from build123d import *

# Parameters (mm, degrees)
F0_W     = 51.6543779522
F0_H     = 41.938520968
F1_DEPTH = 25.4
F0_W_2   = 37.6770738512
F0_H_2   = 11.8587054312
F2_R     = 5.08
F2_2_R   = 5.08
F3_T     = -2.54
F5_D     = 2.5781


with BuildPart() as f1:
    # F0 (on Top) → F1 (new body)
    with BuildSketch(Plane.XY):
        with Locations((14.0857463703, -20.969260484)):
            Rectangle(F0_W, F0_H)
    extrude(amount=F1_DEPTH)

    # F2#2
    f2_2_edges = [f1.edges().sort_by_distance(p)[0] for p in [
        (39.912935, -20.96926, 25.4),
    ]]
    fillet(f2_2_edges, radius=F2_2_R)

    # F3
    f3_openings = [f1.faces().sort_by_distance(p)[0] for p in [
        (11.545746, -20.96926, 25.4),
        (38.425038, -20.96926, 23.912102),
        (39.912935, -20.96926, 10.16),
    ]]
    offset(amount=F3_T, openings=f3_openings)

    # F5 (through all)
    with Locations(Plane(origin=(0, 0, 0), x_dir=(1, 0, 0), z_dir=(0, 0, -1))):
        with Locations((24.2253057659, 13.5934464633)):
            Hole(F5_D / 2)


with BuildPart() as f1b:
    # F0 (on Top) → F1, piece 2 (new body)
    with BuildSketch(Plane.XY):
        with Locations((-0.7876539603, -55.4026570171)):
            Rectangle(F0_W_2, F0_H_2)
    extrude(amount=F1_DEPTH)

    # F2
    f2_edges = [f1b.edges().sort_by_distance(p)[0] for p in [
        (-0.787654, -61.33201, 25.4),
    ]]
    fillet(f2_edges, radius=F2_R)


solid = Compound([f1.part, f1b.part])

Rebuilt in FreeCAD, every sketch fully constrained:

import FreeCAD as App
import Part
import Sketcher
Q = App.Units.Quantity


def edges_at(feature, points):
    """Names of the edges that pass closest to the given points."""
    edges = feature.Shape.Edges
    near = lambda p: min(range(len(edges)), key=lambda i: edges[i].distToShape(Part.Vertex(*p))[0])
    return sorted({f"Edge{near(p) + 1}" for p in points})


def faces_at(feature, points):
    """Names of the faces that lie closest to the given points."""
    faces = feature.Shape.Faces
    near = lambda p: min(range(len(faces)), key=lambda i: faces[i].distToShape(Part.Vertex(*p))[0])
    return sorted({f"Face{near(p) + 1}" for p in points})


def add_polygon(sketch, points):
    """Adds a closed chain of lines whose ends are joined by coincident constraints."""
    first, n = sketch.GeometryCount, len(points)
    for a, b in zip(points, points[1:] + points[:1]):
        sketch.addGeometry(Part.LineSegment(App.Vector(*a, 0), App.Vector(*b, 0)), False)
    for i in range(n):
        sketch.addConstraint(Sketcher.Constraint("Coincident", first + i, 2, first + (i + 1) % n, 1))

doc = App.newDocument("Part")
body = doc.addObject("PartDesign::Body", "Body")

# Sketch on XY plane
sketch1 = doc.addObject("Sketcher::SketchObject", "Sketch")
body.addObject(sketch1)
sketch1.AttachmentSupport = (doc.XY_Plane, [""])
sketch1.MapMode = "FlatFace"
add_polygon(sketch1, [(-11.741443, 0), (-11.741443, -41.938521), (39.912935, -41.938521), (39.912935, 0)])  # lines 0-3
sketch1.addConstraint([
    Sketcher.Constraint("Vertical", 0),
    Sketcher.Constraint("Horizontal", 1),
    Sketcher.Constraint("Vertical", 2),
    Sketcher.Constraint("Horizontal", 3),
    Sketcher.Constraint("PointOnObject", 2, 2, -1),
    Sketcher.Constraint("DistanceY", 0, 2, 0, 1, Q("41.938521 mm")),
    Sketcher.Constraint("DistanceX", 1, 1, 1, 2, Q("51.654378 mm")),
    Sketcher.Constraint("DistanceX", 0, 2, -1, 1, Q("11.741443 mm")),
])
pad1 = doc.addObject("PartDesign::Pad", "Pad")
body.addObject(pad1)
pad1.Profile = sketch1
pad1.Length = Q("1 in")
doc.recompute()

fillet = doc.addObject("PartDesign::Fillet", "Fillet")
body.addObject(fillet)
fillet.Base = (pad1, edges_at(pad1, [(39.913, -20.969, 25.4)]))
fillet.Radius = Q("0.2 in")
doc.recompute()

thickness = doc.addObject("PartDesign::Thickness", "Thickness")
body.addObject(thickness)
thickness.Base = (fillet, faces_at(fillet, [(11.546, -20.969, 25.4), (38.425, -20.969, 23.912), (39.913, -20.969, 10.16)]))
thickness.Value = Q("0.1 in")
thickness.Reversed = True
thickness.Join = "Arc"

# Sketch on XY plane
sketch2 = doc.addObject("Sketcher::SketchObject", "Sketch001")
body.addObject(sketch2)
sketch2.AttachmentSupport = (doc.XY_Plane, [""])
sketch2.MapMode = "FlatFace"
sketch2.addGeometry(Part.Circle(App.Vector(24.225306, -13.593446, 0), App.Vector(0, 0, 1), 1.28905), False)
sketch2.addConstraint([
    Sketcher.Constraint("Diameter", 0, Q("0.1015 in")),
    Sketcher.Constraint("DistanceX", -1, 1, 0, 3, Q("24.225306 mm")),
    Sketcher.Constraint("DistanceY", 0, 3, -1, 1, Q("13.593446 mm")),
])
doc.recompute()
hole = doc.addObject("PartDesign::Hole", "Hole")
body.addObject(hole)
hole.Profile = sketch2
hole.ThreadType = "None"
hole.Diameter = Q("0.1015 in")
hole.DepthType = "ThroughAll"
hole.Reversed = True
body2 = doc.addObject("PartDesign::Body", "Body001")

# Sketch on XY plane
sketch3 = doc.addObject("Sketcher::SketchObject", "Sketch002")
body2.addObject(sketch3)
sketch3.AttachmentSupport = (doc.getObject("XY_Plane001"), [""])
sketch3.MapMode = "FlatFace"
add_polygon(sketch3, [(-19.626191, -49.473304), (-19.626191, -61.33201), (18.050883, -61.33201), (18.050883, -49.473304)])  # lines 0-3
sketch3.addConstraint([
    Sketcher.Constraint("Vertical", 0),
    Sketcher.Constraint("Horizontal", 1),
    Sketcher.Constraint("Vertical", 2),
    Sketcher.Constraint("Horizontal", 3),
    Sketcher.Constraint("DistanceX", 1, 1, 1, 2, Q("37.677074 mm")),
    Sketcher.Constraint("DistanceY", 0, 2, 0, 1, Q("11.858705 mm")),
    Sketcher.Constraint("DistanceX", 0, 2, -1, 1, Q("19.626191 mm")),
    Sketcher.Constraint("DistanceY", 0, 2, -1, 1, Q("61.33201 mm")),
])
pad2 = doc.addObject("PartDesign::Pad", "Pad001")
body2.addObject(pad2)
pad2.Profile = sketch3
pad2.Length = Q("1 in")
doc.recompute()

fillet2 = doc.addObject("PartDesign::Fillet", "Fillet001")
body2.addObject(fillet2)
fillet2.Base = (pad2, edges_at(pad2, [(-0.788, -61.332, 25.4)]))
fillet2.Radius = Q("0.2 in")

doc.recompute()
